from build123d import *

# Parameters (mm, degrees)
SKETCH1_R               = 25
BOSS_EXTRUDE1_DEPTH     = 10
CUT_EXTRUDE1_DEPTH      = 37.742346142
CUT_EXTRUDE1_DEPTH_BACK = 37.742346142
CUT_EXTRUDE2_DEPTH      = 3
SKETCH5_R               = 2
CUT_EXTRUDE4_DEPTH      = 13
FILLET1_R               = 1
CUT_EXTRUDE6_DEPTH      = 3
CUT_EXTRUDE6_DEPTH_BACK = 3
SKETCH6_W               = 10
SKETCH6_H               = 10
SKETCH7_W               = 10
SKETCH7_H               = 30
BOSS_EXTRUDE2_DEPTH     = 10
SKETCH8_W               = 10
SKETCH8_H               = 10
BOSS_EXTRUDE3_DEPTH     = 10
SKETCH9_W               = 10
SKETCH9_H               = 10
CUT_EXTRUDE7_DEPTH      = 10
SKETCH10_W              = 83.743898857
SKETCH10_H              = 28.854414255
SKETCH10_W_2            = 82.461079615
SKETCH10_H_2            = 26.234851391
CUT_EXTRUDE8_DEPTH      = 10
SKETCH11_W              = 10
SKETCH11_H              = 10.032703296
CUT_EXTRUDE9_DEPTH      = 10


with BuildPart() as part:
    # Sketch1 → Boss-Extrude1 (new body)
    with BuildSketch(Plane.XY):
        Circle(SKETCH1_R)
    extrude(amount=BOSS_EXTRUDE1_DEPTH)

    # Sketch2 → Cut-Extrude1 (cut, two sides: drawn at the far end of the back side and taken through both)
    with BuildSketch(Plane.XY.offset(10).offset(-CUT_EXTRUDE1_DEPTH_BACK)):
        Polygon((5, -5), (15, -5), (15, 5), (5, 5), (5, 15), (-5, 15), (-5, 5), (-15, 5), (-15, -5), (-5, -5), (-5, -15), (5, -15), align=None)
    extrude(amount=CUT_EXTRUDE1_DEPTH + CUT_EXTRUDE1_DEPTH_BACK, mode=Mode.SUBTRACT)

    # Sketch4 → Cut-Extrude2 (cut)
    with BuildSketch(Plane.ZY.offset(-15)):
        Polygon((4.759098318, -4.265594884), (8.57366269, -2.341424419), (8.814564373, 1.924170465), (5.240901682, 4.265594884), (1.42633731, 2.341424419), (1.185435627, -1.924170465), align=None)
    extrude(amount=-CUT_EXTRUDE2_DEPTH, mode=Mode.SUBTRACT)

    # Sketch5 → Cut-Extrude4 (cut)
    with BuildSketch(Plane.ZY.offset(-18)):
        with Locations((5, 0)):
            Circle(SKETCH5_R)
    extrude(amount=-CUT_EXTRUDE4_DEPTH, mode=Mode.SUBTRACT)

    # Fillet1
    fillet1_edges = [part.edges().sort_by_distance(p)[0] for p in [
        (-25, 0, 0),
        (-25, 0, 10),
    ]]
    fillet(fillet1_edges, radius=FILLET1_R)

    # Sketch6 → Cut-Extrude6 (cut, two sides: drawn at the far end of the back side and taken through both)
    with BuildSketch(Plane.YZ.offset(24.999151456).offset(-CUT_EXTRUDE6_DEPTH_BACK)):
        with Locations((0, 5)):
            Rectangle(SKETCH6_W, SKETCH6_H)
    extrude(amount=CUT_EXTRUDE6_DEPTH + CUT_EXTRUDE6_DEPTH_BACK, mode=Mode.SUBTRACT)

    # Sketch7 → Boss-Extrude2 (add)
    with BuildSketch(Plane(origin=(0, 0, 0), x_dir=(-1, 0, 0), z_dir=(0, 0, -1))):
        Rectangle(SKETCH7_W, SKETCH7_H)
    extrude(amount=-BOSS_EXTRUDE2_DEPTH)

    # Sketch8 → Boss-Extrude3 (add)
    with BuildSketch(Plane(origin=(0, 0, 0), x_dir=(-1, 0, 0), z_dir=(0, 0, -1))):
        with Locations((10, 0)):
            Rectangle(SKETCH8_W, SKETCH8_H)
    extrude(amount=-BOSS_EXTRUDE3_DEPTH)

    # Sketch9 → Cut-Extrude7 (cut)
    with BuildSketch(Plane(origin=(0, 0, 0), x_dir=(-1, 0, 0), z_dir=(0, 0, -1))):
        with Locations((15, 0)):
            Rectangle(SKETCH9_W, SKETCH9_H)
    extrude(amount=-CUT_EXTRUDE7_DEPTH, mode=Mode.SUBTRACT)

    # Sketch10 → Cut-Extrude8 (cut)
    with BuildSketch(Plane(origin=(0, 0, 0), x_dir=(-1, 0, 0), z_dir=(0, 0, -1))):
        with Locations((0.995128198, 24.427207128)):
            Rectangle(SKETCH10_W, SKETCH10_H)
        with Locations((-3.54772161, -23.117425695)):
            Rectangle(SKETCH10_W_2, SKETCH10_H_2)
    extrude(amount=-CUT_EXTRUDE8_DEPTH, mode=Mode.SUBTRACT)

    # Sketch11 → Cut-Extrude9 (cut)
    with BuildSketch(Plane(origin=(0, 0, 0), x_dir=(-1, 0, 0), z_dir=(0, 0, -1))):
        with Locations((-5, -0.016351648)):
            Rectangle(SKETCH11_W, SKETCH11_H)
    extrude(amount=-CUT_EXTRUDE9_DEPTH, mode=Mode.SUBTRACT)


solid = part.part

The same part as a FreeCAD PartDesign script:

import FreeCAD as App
import Part
import Sketcher


def edges_at(feature, points):
    """Names of the edges that pass closest to the given points."""
    edges = feature.Shape.Edges
    near = lambda p: min(range(len(edges)), key=lambda i: edges[i].distToShape(Part.Vertex(*p))[0])
    return sorted({f"Edge{near(p) + 1}" for p in points})

doc = App.newDocument("Part")
body = doc.addObject("PartDesign::Body", "Body")

# Sketch on XY plane
sketch1 = body.newObject("Sketcher::SketchObject", "Sketch")
sketch1.AttachmentSupport = (doc.getObject("XY_Plane"), [""])
sketch1.MapMode = "FlatFace"
sketch1.addGeometry(Part.Circle(App.Vector(0, 0, 0), App.Vector(0, 0, 1), 25), False)
sketch1.addConstraint(Sketcher.Constraint("Coincident", 0, 3, -1, 1))
sketch1.addConstraint(Sketcher.Constraint("Diameter", 0, 50.0))
pad1 = body.newObject("PartDesign::Pad", "Pad")
pad1.Profile = sketch1
pad1.Length = 10

# Sketch on XY plane
sketch2 = body.newObject("Sketcher::SketchObject", "Sketch001")
sketch2.AttachmentSupport = (doc.getObject("XY_Plane"), [""])
sketch2.MapMode = "FlatFace"
sketch2.AttachmentOffset = App.Placement(App.Vector(0, 0, 10), App.Rotation())
sketch2.addGeometry(Part.LineSegment(App.Vector(5, -5, 0), App.Vector(15, -5, 0)), False)
sketch2.addGeometry(Part.LineSegment(App.Vector(15, -5, 0), App.Vector(15, 5, 0)), False)
sketch2.addGeometry(Part.LineSegment(App.Vector(15, 5, 0), App.Vector(5, 5, 0)), False)
sketch2.addGeometry(Part.LineSegment(App.Vector(5, 5, 0), App.Vector(5, 15, 0)), False)
sketch2.addGeometry(Part.LineSegment(App.Vector(5, 15, 0), App.Vector(-5, 15, 0)), False)
sketch2.addGeometry(Part.LineSegment(App.Vector(-5, 15, 0), App.Vector(-5, 5, 0)), False)
sketch2.addGeometry(Part.LineSegment(App.Vector(-5, 5, 0), App.Vector(-15, 5, 0)), False)
sketch2.addGeometry(Part.LineSegment(App.Vector(-15, 5, 0), App.Vector(-15, -5, 0)), False)
sketch2.addGeometry(Part.LineSegment(App.Vector(-15, -5, 0), App.Vector(-5, -5, 0)), False)
sketch2.addGeometry(Part.LineSegment(App.Vector(-5, -5, 0), App.Vector(-5, -15, 0)), False)
sketch2.addGeometry(Part.LineSegment(App.Vector(-5, -15, 0), App.Vector(5, -15, 0)), False)
sketch2.addGeometry(Part.LineSegment(App.Vector(5, -15, 0), App.Vector(5, -5, 0)), False)
sketch2.addConstraint(Sketcher.Constraint("Coincident", 0, 2, 1, 1))
sketch2.addConstraint(Sketcher.Constraint("Coincident", 1, 2, 2, 1))
sketch2.addConstraint(Sketcher.Constraint("Coincident", 2, 2, 3, 1))
sketch2.addConstraint(Sketcher.Constraint("Coincident", 3, 2, 4, 1))
sketch2.addConstraint(Sketcher.Constraint("Coincident", 4, 2, 5, 1))
sketch2.addConstraint(Sketcher.Constraint("Coincident", 5, 2, 6, 1))
sketch2.addConstraint(Sketcher.Constraint("Coincident", 6, 2, 7, 1))
sketch2.addConstraint(Sketcher.Constraint("Coincident", 7, 2, 8, 1))
sketch2.addConstraint(Sketcher.Constraint("Coincident", 8, 2, 9, 1))
sketch2.addConstraint(Sketcher.Constraint("Coincident", 9, 2, 10, 1))
sketch2.addConstraint(Sketcher.Constraint("Coincident", 10, 2, 11, 1))
sketch2.addConstraint(Sketcher.Constraint("Coincident", 11, 2, 0, 1))
sketch2.addConstraint(Sketcher.Constraint("Horizontal", 0))
sketch2.addConstraint(Sketcher.Constraint("Vertical", 1))
sketch2.addConstraint(Sketcher.Constraint("Horizontal", 2))
sketch2.addConstraint(Sketcher.Constraint("Vertical", 3))
sketch2.addConstraint(Sketcher.Constraint("Horizontal", 4))
sketch2.addConstraint(Sketcher.Constraint("Vertical", 5))
sketch2.addConstraint(Sketcher.Constraint("Horizontal", 6))
sketch2.addConstraint(Sketcher.Constraint("Vertical", 7))
sketch2.addConstraint(Sketcher.Constraint("Horizontal", 8))
sketch2.addConstraint(Sketcher.Constraint("Vertical", 9))
sketch2.addConstraint(Sketcher.Constraint("Horizontal", 10))
sketch2.addConstraint(Sketcher.Constraint("Vertical", 11))
sketch2.addConstraint(Sketcher.Constraint("Symmetric", 0, 2, 6, 2, -1, 1))
sketch2.addConstraint(Sketcher.Constraint("Symmetric", 2, 2, 8, 2, -1, 1))
sketch2.addConstraint(Sketcher.Constraint("Symmetric", 4, 2, 10, 2, -1, 1))
sketch2.addConstraint(Sketcher.Constraint("Symmetric", 2, 2, 5, 2, -2))
sketch2.addConstraint(Sketcher.Constraint("Equal", 2, 4))
sketch2.addConstraint(Sketcher.Constraint("Equal", 10, 1))
sketch2.addConstraint(Sketcher.Constraint("Equal", 1, 3))
sketch2.addConstraint(Sketcher.Constraint("DistanceX", 0, 1, 0, 2, 10.0))
pocket1 = body.newObject("PartDesign::Pocket", "Pocket")
pocket1.Profile = sketch2
pocket1.Type = "ThroughAll"
pocket1.Midplane = True

# Sketch on YZ plane
sketch3 = body.newObject("Sketcher::SketchObject", "Sketch002")
sketch3.AttachmentSupport = (doc.getObject("YZ_Plane"), [""])
sketch3.MapMode = "FlatFace"
sketch3.AttachmentOffset = App.Placement(App.Vector(0, 0, 15), App.Rotation())
sketch3.addGeometry(Part.LineSegment(App.Vector(-4.3, 4.8, 0), App.Vector(-2.3, 8.6, 0)), False)
sketch3.addGeometry(Part.LineSegment(App.Vector(-2.3, 8.6, 0), App.Vector(1.9, 8.8, 0)), False)
sketch3.addGeometry(Part.LineSegment(App.Vector(1.9, 8.8, 0), App.Vector(4.3, 5.2, 0)), False)
sketch3.addGeometry(Part.LineSegment(App.Vector(4.3, 5.2, 0), App.Vector(2.3, 1.4, 0)), False)
sketch3.addGeometry(Part.LineSegment(App.Vector(2.3, 1.4, 0), App.Vector(-1.9, 1.2, 0)), False)
sketch3.addGeometry(Part.LineSegment(App.Vector(-1.9, 1.2, 0), App.Vector(-4.3, 4.8, 0)), False)
sketch3.addConstraint(Sketcher.Constraint("Coincident", 0, 2, 1, 1))
sketch3.addConstraint(Sketcher.Constraint("Coincident", 1, 2, 2, 1))
sketch3.addConstraint(Sketcher.Constraint("Coincident", 2, 2, 3, 1))
sketch3.addConstraint(Sketcher.Constraint("Coincident", 3, 2, 4, 1))
sketch3.addConstraint(Sketcher.Constraint("Coincident", 4, 2, 5, 1))
sketch3.addConstraint(Sketcher.Constraint("Coincident", 5, 2, 0, 1))
sketch3.addConstraint(Sketcher.Constraint("Parallel", 0, 3))
sketch3.addConstraint(Sketcher.Constraint("Parallel", 1, 4))
sketch3.addConstraint(Sketcher.Constraint("Parallel", 2, 5))
sketch3.addConstraint(Sketcher.Constraint("Equal", 0, 1))
sketch3.addConstraint(Sketcher.Constraint("Equal", 1, 2))
sketch3.addConstraint(Sketcher.Constraint("Equal", 2, 3))
sketch3.addConstraint(Sketcher.Constraint("DistanceY", -1, 1, 2, 2, 5.240902))
sketch3.addConstraint(Sketcher.Constraint("DistanceY", -1, 1, 5, 2, 4.759098))
sketch3.addConstraint(Sketcher.Constraint("DistanceY", 0, 2, 1, 2, 0.240902))
sketch3.addConstraint(Sketcher.Constraint("Distance", 0, 4.272392))
sketch3.addConstraint(Sketcher.Constraint("DistanceX", -1, 1, 1, 2, 1.92417))
sketch3.addConstraint(Sketcher.Constraint("DistanceX", 4, 2, -1, 1, 1.92417))
pocket2 = body.newObject("PartDesign::Pocket", "Pocket001")
pocket2.Profile = sketch3
pocket2.Length = 3
pocket2.Reversed = True

# Sketch on YZ plane
sketch4 = body.newObject("Sketcher::SketchObject", "Sketch003")
sketch4.AttachmentSupport = (doc.getObject("YZ_Plane"), [""])
sketch4.MapMode = "FlatFace"
sketch4.AttachmentOffset = App.Placement(App.Vector(0, 0, 18), App.Rotation())
sketch4.addGeometry(Part.Circle(App.Vector(0, 5, 0), App.Vector(0, 0, 1), 2), False)
sketch4.addConstraint(Sketcher.Constraint("PointOnObject", 0, 3, -2))
sketch4.addConstraint(Sketcher.Constraint("Diameter", 0, 4.0))
sketch4.addConstraint(Sketcher.Constraint("DistanceY", -1, 1, 0, 3, 5.0))
pocket3 = body.newObject("PartDesign::Pocket", "Pocket002")
pocket3.Profile = sketch4
pocket3.Length = 13
pocket3.Reversed = True
doc.recompute()

fillet = body.newObject("PartDesign::Fillet", "Fillet")
fillet.Base = (pocket3, edges_at(pocket3, [(-25, 0, 0), (-25, 0, 10)]))
fillet.Radius = 1

# Sketch on YZ plane
sketch5 = body.newObject("Sketcher::SketchObject", "Sketch004")
sketch5.AttachmentSupport = (doc.getObject("YZ_Plane"), [""])
sketch5.MapMode = "FlatFace"
sketch5.AttachmentOffset = App.Placement(App.Vector(0, 0, 24.999151), App.Rotation())
sketch5.addGeometry(Part.LineSegment(App.Vector(-5, 10, 0), App.Vector(-5, 0, 0)), False)
sketch5.addGeometry(Part.LineSegment(App.Vector(-5, 0, 0), App.Vector(5, 0, 0)), False)
sketch5.addGeometry(Part.LineSegment(App.Vector(5, 0, 0), App.Vector(5, 10, 0)), False)
sketch5.addGeometry(Part.LineSegment(App.Vector(5, 10, 0), App.Vector(-5, 10, 0)), False)
sketch5.addConstraint(Sketcher.Constraint("Coincident", 0, 2, 1, 1))
sketch5.addConstraint(Sketcher.Constraint("Coincident", 1, 2, 2, 1))
sketch5.addConstraint(Sketcher.Constraint("Coincident", 2, 2, 3, 1))
sketch5.addConstraint(Sketcher.Constraint("Coincident", 3, 2, 0, 1))
sketch5.addConstraint(Sketcher.Constraint("Vertical", 0))
sketch5.addConstraint(Sketcher.Constraint("Horizontal", 1))
sketch5.addConstraint(Sketcher.Constraint("Vertical", 2))
sketch5.addConstraint(Sketcher.Constraint("Horizontal", 3))
sketch5.addConstraint(Sketcher.Constraint("Symmetric", 0, 2, 1, 2, -1, 1))
sketch5.addConstraint(Sketcher.Constraint("Equal", 3, 0))
sketch5.addConstraint(Sketcher.Constraint("DistanceX", 1, 1, 1, 2, 10.0))
pocket4 = body.newObject("PartDesign::Pocket", "Pocket003")
pocket4.Profile = sketch5
pocket4.Type = "TwoLengths"
pocket4.Length = 3
pocket4.Length2 = 3
pocket4.Reversed = True

# Sketch on XY plane
sketch6 = body.newObject("Sketcher::SketchObject", "Sketch005")
sketch6.AttachmentSupport = (doc.getObject("XY_Plane"), [""])
sketch6.MapMode = "FlatFace"
sketch6.addGeometry(Part.LineSegment(App.Vector(5, 15, 0), App.Vector(5, -15, 0)), False)
sketch6.addGeometry(Part.LineSegment(App.Vector(5, -15, 0), App.Vector(-5, -15, 0)), False)
sketch6.addGeometry(Part.LineSegment(App.Vector(-5, -15, 0), App.Vector(-5, 15, 0)), False)
sketch6.addGeometry(Part.LineSegment(App.Vector(-5, 15, 0), App.Vector(5, 15, 0)), False)
sketch6.addConstraint(Sketcher.Constraint("Coincident", 0, 2, 1, 1))
sketch6.addConstraint(Sketcher.Constraint("Coincident", 1, 2, 2, 1))
sketch6.addConstraint(Sketcher.Constraint("Coincident", 2, 2, 3, 1))
sketch6.addConstraint(Sketcher.Constraint("Coincident", 3, 2, 0, 1))
sketch6.addConstraint(Sketcher.Constraint("Vertical", 0))
sketch6.addConstraint(Sketcher.Constraint("Horizontal", 1))
sketch6.addConstraint(Sketcher.Constraint("Vertical", 2))
sketch6.addConstraint(Sketcher.Constraint("Horizontal", 3))
sketch6.addConstraint(Sketcher.Constraint("Symmetric", 0, 2, 2, 2, -1, 1))
sketch6.addConstraint(Sketcher.Constraint("DistanceX", 1, 2, 1, 1, 10.0))
sketch6.addConstraint(Sketcher.Constraint("DistanceY", 0, 2, 0, 1, 30.0))
pad2 = body.newObject("PartDesign::Pad", "Pad001")
pad2.Profile = sketch6
pad2.Length = 10

# Sketch on XY plane
sketch7 = body.newObject("Sketcher::SketchObject", "Sketch006")
sketch7.AttachmentSupport = (doc.getObject("XY_Plane"), [""])
sketch7.MapMode = "FlatFace"
sketch7.addGeometry(Part.LineSegment(App.Vector(-5, 5, 0), App.Vector(-5, -5, 0)), False)
sketch7.addGeometry(Part.LineSegment(App.Vector(-5, -5, 0), App.Vector(-15, -5, 0)), False)
sketch7.addGeometry(Part.LineSegment(App.Vector(-15, -5, 0), App.Vector(-15, 5, 0)), False)
sketch7.addGeometry(Part.LineSegment(App.Vector(-15, 5, 0), App.Vector(-5, 5, 0)), False)
sketch7.addConstraint(Sketcher.Constraint("Coincident", 0, 2, 1, 1))
sketch7.addConstraint(Sketcher.Constraint("Coincident", 1, 2, 2, 1))
sketch7.addConstraint(Sketcher.Constraint("Coincident", 2, 2, 3, 1))
sketch7.addConstraint(Sketcher.Constraint("Coincident", 3, 2, 0, 1))
sketch7.addConstraint(Sketcher.Constraint("Vertical", 0))
sketch7.addConstraint(Sketcher.Constraint("Horizontal", 1))
sketch7.addConstraint(Sketcher.Constraint("Vertical", 2))
sketch7.addConstraint(Sketcher.Constraint("Horizontal", 3))
sketch7.addConstraint(Sketcher.Constraint("Equal", 3, 0))
sketch7.addConstraint(Sketcher.Constraint("DistanceX", 1, 2, 1, 1, 10.0))
sketch7.addConstraint(Sketcher.Constraint("DistanceX", 0, 2, -1, 1, 5.0))
sketch7.addConstraint(Sketcher.Constraint("DistanceY", 0, 2, -1, 1, 5.0))
pad3 = body.newObject("PartDesign::Pad", "Pad002")
pad3.Profile = sketch7
pad3.Length = 10

# Sketch on XY plane
sketch8 = body.newObject("Sketcher::SketchObject", "Sketch007")
sketch8.AttachmentSupport = (doc.getObject("XY_Plane"), [""])
sketch8.MapMode = "FlatFace"
sketch8.addGeometry(Part.LineSegment(App.Vector(-10, 5, 0), App.Vector(-10, -5, 0)), False)
sketch8.addGeometry(Part.LineSegment(App.Vector(-10, -5, 0), App.Vector(-20, -5, 0)), False)
sketch8.addGeometry(Part.LineSegment(App.Vector(-20, -5, 0), App.Vector(-20, 5, 0)), False)
sketch8.addGeometry(Part.LineSegment(App.Vector(-20, 5, 0), App.Vector(-10, 5, 0)), False)
sketch8.addConstraint(Sketcher.Constraint("Coincident", 0, 2, 1, 1))
sketch8.addConstraint(Sketcher.Constraint("Coincident", 1, 2, 2, 1))
sketch8.addConstraint(Sketcher.Constraint("Coincident", 2, 2, 3, 1))
sketch8.addConstraint(Sketcher.Constraint("Coincident", 3, 2, 0, 1))
sketch8.addConstraint(Sketcher.Constraint("Vertical", 0))
sketch8.addConstraint(Sketcher.Constraint("Horizontal", 1))
sketch8.addConstraint(Sketcher.Constraint("Vertical", 2))
sketch8.addConstraint(Sketcher.Constraint("Horizontal", 3))
sketch8.addConstraint(Sketcher.Constraint("Equal", 3, 0))
sketch8.addConstraint(Sketcher.Constraint("DistanceX", 1, 2, 1, 1, 10.0))
sketch8.addConstraint(Sketcher.Constraint("DistanceX", 0, 2, -1, 1, 10.0))
sketch8.addConstraint(Sketcher.Constraint("DistanceY", 0, 2, -1, 1, 5.0))
pocket5 = body.newObject("PartDesign::Pocket", "Pocket004")
pocket5.Profile = sketch8
pocket5.Length = 10
pocket5.Reversed = True

# Sketch on XY plane
sketch9 = body.newObject("Sketcher::SketchObject", "Sketch008")
sketch9.AttachmentSupport = (doc.getObject("XY_Plane"), [""])
sketch9.MapMode = "FlatFace"
sketch9.addGeometry(Part.LineSegment(App.Vector(41, 39, 0), App.Vector(41, 10, 0)), False)
sketch9.addGeometry(Part.LineSegment(App.Vector(41, 10, 0), App.Vector(-43, 10, 0)), False)
sketch9.addGeometry(Part.LineSegment(App.Vector(-43, 10, 0), App.Vector(-43, 39, 0)), False)
sketch9.addGeometry(Part.LineSegment(App.Vector(-43, 39, 0), App.Vector(41, 39, 0)), False)
sketch9.addGeometry(Part.LineSegment(App.Vector(45, -10, 0), App.Vector(45, -36, 0)), False)
sketch9.addGeometry(Part.LineSegment(App.Vector(45, -36, 0), App.Vector(-38, -36, 0)), False)
sketch9.addGeometry(Part.LineSegment(App.Vector(-38, -36, 0), App.Vector(-38, -10, 0)), False)
sketch9.addGeometry(Part.LineSegment(App.Vector(-38, -10, 0), App.Vector(45, -10, 0)), False)
sketch9.addConstraint(Sketcher.Constraint("Coincident", 0, 2, 1, 1))
sketch9.addConstraint(Sketcher.Constraint("Coincident", 1, 2, 2, 1))
sketch9.addConstraint(Sketcher.Constraint("Coincident", 2, 2, 3, 1))
sketch9.addConstraint(Sketcher.Constraint("Coincident", 3, 2, 0, 1))
sketch9.addConstraint(Sketcher.Constraint("Coincident", 4, 2, 5, 1))
sketch9.addConstraint(Sketcher.Constraint("Coincident", 5, 2, 6, 1))
sketch9.addConstraint(Sketcher.Constraint("Coincident", 6, 2, 7, 1))
sketch9.addConstraint(Sketcher.Constraint("Coincident", 7, 2, 4, 1))
sketch9.addConstraint(Sketcher.Constraint("Vertical", 0))
sketch9.addConstraint(Sketcher.Constraint("Horizontal", 1))
sketch9.addConstraint(Sketcher.Constraint("Vertical", 2))
sketch9.addConstraint(Sketcher.Constraint("Horizontal", 3))
sketch9.addConstraint(Sketcher.Constraint("Vertical", 4))
sketch9.addConstraint(Sketcher.Constraint("Horizontal", 5))
sketch9.addConstraint(Sketcher.Constraint("Vertical", 6))
sketch9.addConstraint(Sketcher.Constraint("Horizontal", 7))
sketch9.addConstraint(Sketcher.Constraint("DistanceY", -1, 1, 0, 2, 10.0))
sketch9.addConstraint(Sketcher.Constraint("DistanceY", 6, 2, -1, 1, 10.0))
sketch9.addConstraint(Sketcher.Constraint("DistanceX", 1, 2, 1, 1, 83.743899))
sketch9.addConstraint(Sketcher.Constraint("DistanceX", 5, 2, 5, 1, 82.46108))
sketch9.addConstraint(Sketcher.Constraint("DistanceY", 4, 2, 4, 1, 26.234851))
sketch9.addConstraint(Sketcher.Constraint("DistanceY", 0, 2, 0, 1, 28.854414))
sketch9.addConstraint(Sketcher.Constraint("DistanceX", -1, 1, 0, 2, 40.876821))
sketch9.addConstraint(Sketcher.Constraint("DistanceX", -1, 1, 4, 2, 44.778261))
pocket6 = body.newObject("PartDesign::Pocket", "Pocket005")
pocket6.Profile = sketch9
pocket6.Length = 10
pocket6.Reversed = True

# Sketch on XY plane
sketch10 = body.newObject("Sketcher::SketchObject", "Sketch009")
sketch10.AttachmentSupport = (doc.getObject("XY_Plane"), [""])
sketch10.MapMode = "FlatFace"
sketch10.addGeometry(Part.LineSegment(App.Vector(10, 5, 0), App.Vector(10, -5, 0)), False)
sketch10.addGeometry(Part.LineSegment(App.Vector(10, -5, 0), App.Vector(0, -5, 0)), False)
sketch10.addGeometry(Part.LineSegment(App.Vector(0, -5, 0), App.Vector(0, 5, 0)), False)
sketch10.addGeometry(Part.LineSegment(App.Vector(0, 5, 0), App.Vector(10, 5, 0)), False)
sketch10.addConstraint(Sketcher.Constraint("Coincident", 0, 2, 1, 1))
sketch10.addConstraint(Sketcher.Constraint("Coincident", 1, 2, 2, 1))
sketch10.addConstraint(Sketcher.Constraint("Coincident", 2, 2, 3, 1))
sketch10.addConstraint(Sketcher.Constraint("Coincident", 3, 2, 0, 1))
sketch10.addConstraint(Sketcher.Constraint("Vertical", 0))
sketch10.addConstraint(Sketcher.Constraint("Horizontal", 1))
sketch10.addConstraint(Sketcher.Constraint("Vertical", 2))
sketch10.addConstraint(Sketcher.Constraint("Horizontal", 3))
sketch10.addConstraint(Sketcher.Constraint("PointOnObject", 1, 2, -2))
sketch10.addConstraint(Sketcher.Constraint("DistanceX", 1, 2, 1, 1, 10.0))
sketch10.addConstraint(Sketcher.Constraint("DistanceY", -1, 1, 2, 2, 5.0))
sketch10.addConstraint(Sketcher.Constraint("DistanceY", 0, 2, 0, 1, 10.032703))
pocket7 = body.newObject("PartDesign::Pocket", "Pocket006")
pocket7.Profile = sketch10
pocket7.Length = 10
pocket7.Reversed = True

doc.recompute()
